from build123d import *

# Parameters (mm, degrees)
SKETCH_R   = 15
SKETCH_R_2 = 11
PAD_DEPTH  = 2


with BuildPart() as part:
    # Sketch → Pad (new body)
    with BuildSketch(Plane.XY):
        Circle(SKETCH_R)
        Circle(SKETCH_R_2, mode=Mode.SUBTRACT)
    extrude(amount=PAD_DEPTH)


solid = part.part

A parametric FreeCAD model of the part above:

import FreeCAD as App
import Part
import Sketcher
from FreeCAD import Vector
Q = App.Units.Quantity

doc = App.newDocument("Part")
body = doc.addObject("PartDesign::Body", "Body")

sketch1 = body.newObject("Sketcher::SketchObject", "Sketch")
sketch1.AttachmentSupport = (doc.getObject("XY_Plane"), [""])
sketch1.MapMode = "FlatFace"
sketch1.addGeometry([
    Part.Circle(Vector(0, 0, 0), Vector(0, 0, 1), 15),
    Part.Circle(Vector(0, 0, 0), Vector(0, 0, 1), 11),
], False)
sketch1.addConstraint([
    Sketcher.Constraint("Coincident", 0, 3, -1, 1),
    Sketcher.Constraint("Coincident", 1, 3, -1, 1),
    Sketcher.Constraint("Diameter", 0, Q("30 mm")),
    Sketcher.Constraint("Diameter", 1, Q("22 mm")),
])
pad1 = body.newObject("PartDesign::Pad", "Pad")
pad1.Profile = sketch1
pad1.Length = 2

doc.recompute()
